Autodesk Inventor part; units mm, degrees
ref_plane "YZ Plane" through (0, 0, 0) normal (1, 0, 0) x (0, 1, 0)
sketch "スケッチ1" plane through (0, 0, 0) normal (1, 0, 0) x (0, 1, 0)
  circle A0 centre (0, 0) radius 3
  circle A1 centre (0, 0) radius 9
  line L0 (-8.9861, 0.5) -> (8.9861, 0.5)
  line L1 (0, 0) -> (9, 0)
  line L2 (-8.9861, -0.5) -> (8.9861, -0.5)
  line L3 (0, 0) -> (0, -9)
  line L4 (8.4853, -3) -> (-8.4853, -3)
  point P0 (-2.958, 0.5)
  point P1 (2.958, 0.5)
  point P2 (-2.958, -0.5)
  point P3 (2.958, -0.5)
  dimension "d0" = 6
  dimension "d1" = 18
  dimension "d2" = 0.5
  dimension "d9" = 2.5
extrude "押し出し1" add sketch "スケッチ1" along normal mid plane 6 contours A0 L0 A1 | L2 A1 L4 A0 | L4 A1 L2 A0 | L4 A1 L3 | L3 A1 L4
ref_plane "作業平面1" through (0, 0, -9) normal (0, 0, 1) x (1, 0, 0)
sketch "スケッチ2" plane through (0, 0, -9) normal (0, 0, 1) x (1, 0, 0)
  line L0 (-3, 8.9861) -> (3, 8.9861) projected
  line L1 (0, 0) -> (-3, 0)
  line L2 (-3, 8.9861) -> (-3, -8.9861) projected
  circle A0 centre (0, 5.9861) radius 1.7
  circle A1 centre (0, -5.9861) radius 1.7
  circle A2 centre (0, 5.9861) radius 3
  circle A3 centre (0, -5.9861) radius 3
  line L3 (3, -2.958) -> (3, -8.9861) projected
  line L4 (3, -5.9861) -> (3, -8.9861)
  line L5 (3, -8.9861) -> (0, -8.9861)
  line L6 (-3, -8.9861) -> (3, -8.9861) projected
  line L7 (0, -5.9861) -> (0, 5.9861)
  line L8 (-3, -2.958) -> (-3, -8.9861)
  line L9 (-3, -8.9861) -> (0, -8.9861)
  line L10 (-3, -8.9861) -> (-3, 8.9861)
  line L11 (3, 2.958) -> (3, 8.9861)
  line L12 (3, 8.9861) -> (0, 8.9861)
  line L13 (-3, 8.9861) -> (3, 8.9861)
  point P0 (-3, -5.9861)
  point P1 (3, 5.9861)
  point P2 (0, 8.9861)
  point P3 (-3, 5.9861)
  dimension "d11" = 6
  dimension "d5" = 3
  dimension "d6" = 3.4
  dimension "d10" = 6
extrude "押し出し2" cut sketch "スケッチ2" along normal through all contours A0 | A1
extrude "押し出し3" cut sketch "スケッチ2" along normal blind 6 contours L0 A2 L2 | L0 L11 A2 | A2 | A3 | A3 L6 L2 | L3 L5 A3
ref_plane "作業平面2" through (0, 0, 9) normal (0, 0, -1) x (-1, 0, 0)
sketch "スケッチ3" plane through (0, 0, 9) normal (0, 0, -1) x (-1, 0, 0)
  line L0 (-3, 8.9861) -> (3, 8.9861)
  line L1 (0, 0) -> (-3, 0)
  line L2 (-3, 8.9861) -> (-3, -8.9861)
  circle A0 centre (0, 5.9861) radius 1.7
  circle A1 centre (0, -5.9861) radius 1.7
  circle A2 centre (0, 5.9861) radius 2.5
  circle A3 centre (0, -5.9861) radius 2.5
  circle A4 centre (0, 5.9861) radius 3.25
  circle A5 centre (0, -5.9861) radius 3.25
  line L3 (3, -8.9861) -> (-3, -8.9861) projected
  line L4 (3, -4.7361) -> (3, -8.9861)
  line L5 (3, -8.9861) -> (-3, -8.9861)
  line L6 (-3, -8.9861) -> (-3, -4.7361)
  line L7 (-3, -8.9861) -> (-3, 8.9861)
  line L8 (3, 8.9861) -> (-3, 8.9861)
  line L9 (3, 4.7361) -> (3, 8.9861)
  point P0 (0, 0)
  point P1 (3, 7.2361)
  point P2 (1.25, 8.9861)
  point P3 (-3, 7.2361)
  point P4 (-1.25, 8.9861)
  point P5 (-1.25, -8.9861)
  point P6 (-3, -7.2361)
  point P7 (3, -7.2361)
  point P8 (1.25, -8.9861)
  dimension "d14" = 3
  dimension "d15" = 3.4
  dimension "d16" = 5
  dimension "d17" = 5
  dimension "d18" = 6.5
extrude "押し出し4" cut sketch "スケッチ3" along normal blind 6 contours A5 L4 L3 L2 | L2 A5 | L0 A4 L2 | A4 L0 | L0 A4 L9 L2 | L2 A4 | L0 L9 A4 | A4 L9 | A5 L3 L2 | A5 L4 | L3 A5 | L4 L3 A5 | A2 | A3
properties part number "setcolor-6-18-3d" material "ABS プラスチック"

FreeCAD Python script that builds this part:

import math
import FreeCAD as App
import Part
import Sketcher
from FreeCAD import Vector
Q = App.Units.Quantity

doc = App.newDocument("Part")
body = doc.addObject("PartDesign::Body", "Body")
body.AllowCompound = True

# Sketch on YZ plane
sketch1 = doc.addObject("Sketcher::SketchObject", "Sketch")
body.addObject(sketch1)
sketch1.AttachmentSupport = (doc.YZ_Plane, [""])
sketch1.MapMode = "FlatFace"
sketch1.addGeometry([
    Part.ArcOfCircle(Part.Circle(Vector(0, 0, 0), Vector(0, 0, 1), 3), math.radians(10), math.radians(170)),  # 0
    Part.LineSegment(Vector(3, 0.5, 0), Vector(9, 0.5, 0)),  # 1
    Part.ArcOfCircle(Part.Circle(Vector(0, 0, 0), Vector(0, 0, 1), 9), math.radians(3), math.radians(177)),  # 2
    Part.LineSegment(Vector(-9, 0.5, 0), Vector(-3, 0.5, 0)),  # 3
    Part.LineSegment(Vector(9, -0.5, 0), Vector(3, -0.5, 0)),  # 4
    Part.ArcOfCircle(Part.Circle(Vector(0, 0, 0), Vector(0, 0, 1), 3), math.radians(-170), math.radians(-10)),  # 5
    Part.LineSegment(Vector(-3, -0.5, 0), Vector(-9, -0.5, 0)),  # 6
    Part.ArcOfCircle(Part.Circle(Vector(0, 0, 0), Vector(0, 0, 1), 9), math.radians(-177), math.radians(-3)),  # 7
], False)
sketch1.addConstraint([
    Sketcher.Constraint("Coincident", 0, 1, 1, 1),
    Sketcher.Constraint("Coincident", 1, 2, 2, 1),
    Sketcher.Constraint("Coincident", 2, 2, 3, 1),
    Sketcher.Constraint("Coincident", 3, 2, 0, 2),
    Sketcher.Constraint("Coincident", 4, 2, 5, 2),
    Sketcher.Constraint("Coincident", 5, 1, 6, 1),
    Sketcher.Constraint("Coincident", 6, 2, 7, 1),
    Sketcher.Constraint("Coincident", 7, 2, 4, 1),
    Sketcher.Constraint("Horizontal", 1),
    Sketcher.Constraint("Horizontal", 3),
    Sketcher.Constraint("Horizontal", 4),
    Sketcher.Constraint("Horizontal", 6),
    Sketcher.Constraint("Coincident", 0, 3, -1, 1),
    Sketcher.Constraint("Coincident", 2, 3, -1, 1),
    Sketcher.Constraint("Coincident", 5, 3, -1, 1),
    Sketcher.Constraint("Coincident", 7, 3, -1, 1),
    Sketcher.Constraint("Equal", 0, 5),
    Sketcher.Constraint("Equal", 2, 7),
    Sketcher.Constraint("Horizontal", 1, 2, 2, 2),
    Sketcher.Constraint("Horizontal", 4, 2, 5, 1),
    Sketcher.Constraint("Vertical", 0, 1, 4, 2),
    Sketcher.Constraint("Radius", 0, Q("3 mm")),
    Sketcher.Constraint("Radius", 2, Q("9 mm")),
    Sketcher.Constraint("DistanceY", -1, 1, 0, 1, Q("0.5 mm")),
])
pad1 = doc.addObject("PartDesign::Pad", "Pad")
body.addObject(pad1)
pad1.Profile = sketch1
pad1.Length = 6
pad1.Midplane = True

# Sketch on XY plane
sketch2 = doc.addObject("Sketcher::SketchObject", "Sketch001")
body.addObject(sketch2)
sketch2.AttachmentSupport = (doc.XY_Plane, [""])
sketch2.MapMode = "FlatFace"
sketch2.AttachmentOffset = App.Placement(Vector(0, 0, -9), App.Rotation())
sketch2.addGeometry([
    Part.Circle(Vector(0, 6, 0), Vector(0, 0, 1), 1.7),
    Part.Circle(Vector(0, -6, 0), Vector(0, 0, 1), 1.7),
], False)
sketch2.addConstraint([
    Sketcher.Constraint("Equal", 0, 1),
    Sketcher.Constraint("Symmetric", 0, 3, 1, 3, -1, 1),
    Sketcher.Constraint("PointOnObject", 0, 3, -2),
    Sketcher.Constraint("Diameter", 0, Q("3.4 mm")),
    Sketcher.Constraint("DistanceY", -1, 1, 0, 3, Q("5.986 mm")),
])
pocket1 = doc.addObject("PartDesign::Pocket", "Pocket")
body.addObject(pocket1)
pocket1.Profile = sketch2
pocket1.Type = "ThroughAll"
pocket1.Reversed = True

# Sketch on XY plane
sketch3 = doc.addObject("Sketcher::SketchObject", "Sketch002")
body.addObject(sketch3)
sketch3.AttachmentSupport = (doc.XY_Plane, [""])
sketch3.MapMode = "FlatFace"
sketch3.AttachmentOffset = App.Placement(Vector(0, 0, -9), App.Rotation())
sketch3.addGeometry([
    Part.LineSegment(Vector(-3, 9, 0), Vector(-3, 6, 0)),  # 0
    Part.ArcOfCircle(Part.Circle(Vector(0, 6, 0), Vector(0, 0, 1), 3), math.radians(180), math.radians(270)),  # 1
    Part.ArcOfCircle(Part.Circle(Vector(0, 6, 0), Vector(0, 0, 1), 3), math.radians(-90), math.radians(0)),  # 2
    Part.LineSegment(Vector(3, 6, 0), Vector(3, 9, 0)),  # 3
    Part.LineSegment(Vector(3, 9, 0), Vector(-3, 9, 0)),  # 4
    Part.Circle(Vector(0, 6, 0), Vector(0, 0, 1), 1.7),  # 5
    Part.ArcOfCircle(Part.Circle(Vector(0, -6, 0), Vector(0, 0, 1), 3), math.radians(0), math.radians(90)),  # 6
    Part.ArcOfCircle(Part.Circle(Vector(0, -6, 0), Vector(0, 0, 1), 3), math.radians(90), math.radians(180)),  # 7
    Part.LineSegment(Vector(-3, -6, 0), Vector(-3, -9, 0)),  # 8
    Part.LineSegment(Vector(-3, -9, 0), Vector(3, -9, 0)),  # 9
    Part.LineSegment(Vector(3, -9, 0), Vector(3, -6, 0)),  # 10
    Part.Circle(Vector(0, -6, 0), Vector(0, 0, 1), 1.7),  # 11
], False)
sketch3.addConstraint([
    Sketcher.Constraint("Tangent", 0, 2, 1, 1),
    Sketcher.Constraint("Tangent", 1, 2, 2, 1),
    Sketcher.Constraint("Tangent", 2, 2, 3, 1),
    Sketcher.Constraint("Coincident", 3, 2, 4, 1),
    Sketcher.Constraint("Coincident", 4, 2, 0, 1),
    Sketcher.Constraint("Tangent", 6, 2, 7, 1),
    Sketcher.Constraint("Tangent", 7, 2, 8, 1),
    Sketcher.Constraint("Coincident", 8, 2, 9, 1),
    Sketcher.Constraint("Coincident", 9, 2, 10, 1),
    Sketcher.Constraint("Tangent", 10, 2, 6, 1),
    Sketcher.Constraint("Vertical", 0),
    Sketcher.Constraint("Vertical", 3),
    Sketcher.Constraint("Horizontal", 4),
    Sketcher.Constraint("Vertical", 8),
    Sketcher.Constraint("Horizontal", 9),
    Sketcher.Constraint("Vertical", 10),
    Sketcher.Constraint("Coincident", 5, 3, 1, 3),
    Sketcher.Constraint("Coincident", 11, 3, 6, 3),
    Sketcher.Constraint("Equal", 1, 2),
    Sketcher.Constraint("Equal", 2, 6),
    Sketcher.Constraint("Equal", 6, 7),
    Sketcher.Constraint("Equal", 5, 11),
    Sketcher.Constraint("Symmetric", 1, 3, 6, 3, -1, 1),
    Sketcher.Constraint("Symmetric", 4, 2, 8, 2, -1),
    Sketcher.Constraint("PointOnObject", 1, 2, -2),
    Sketcher.Constraint("PointOnObject", 6, 2, -2),
    Sketcher.Constraint("Radius", 1, Q("3 mm")),
    Sketcher.Constraint("Diameter", 5, Q("3.4 mm")),
    Sketcher.Constraint("DistanceY", 0, 2, 0, 1, Q("3 mm")),
    Sketcher.Constraint("DistanceY", -1, 1, 1, 3, Q("5.986 mm")),
])
pocket2 = doc.addObject("PartDesign::Pocket", "Pocket001")
body.addObject(pocket2)
pocket2.Profile = sketch3
pocket2.Length = 6
pocket2.Reversed = True

# Sketch on XY plane
sketch4 = doc.addObject("Sketcher::SketchObject", "Sketch003")
body.addObject(sketch4)
sketch4.AttachmentSupport = (doc.XY_Plane, [""])
sketch4.MapMode = "FlatFace"
sketch4.AttachmentOffset = App.Placement(Vector(0, 0, 9), App.Rotation())
sketch4.addGeometry([
    Part.LineSegment(Vector(3, -7.2, 0), Vector(3, -9, 0)),  # 0
    Part.LineSegment(Vector(3, -9, 0), Vector(1.2, -9, 0)),  # 1
    Part.ArcOfCircle(Part.Circle(Vector(0, -6, 0), Vector(0, 0, 1), 3.2), math.radians(-113), math.radians(-67)),  # 2
    Part.LineSegment(Vector(-1.2, -9, 0), Vector(-3, -9, 0)),  # 3
    Part.LineSegment(Vector(-3, -9, 0), Vector(-3, -7.2, 0)),  # 4
    Part.ArcOfCircle(Part.Circle(Vector(0, -6, 0), Vector(0, 0, 1), 3.2), math.radians(-23), math.radians(203)),  # 5
    Part.Circle(Vector(0, -6, 0), Vector(0, 0, 1), 1.7),  # 6
    Part.LineSegment(Vector(1.2, 9, 0), Vector(3, 9, 0)),  # 7
    Part.LineSegment(Vector(3, 9, 0), Vector(3, 7.2, 0)),  # 8
    Part.ArcOfCircle(Part.Circle(Vector(0, 6, 0), Vector(0, 0, 1), 3.2), math.radians(157), math.radians(383)),  # 9
    Part.LineSegment(Vector(-3, 7.2, 0), Vector(-3, 9, 0)),  # 10
    Part.LineSegment(Vector(-3, 9, 0), Vector(-1.2, 9, 0)),  # 11
    Part.ArcOfCircle(Part.Circle(Vector(0, 6, 0), Vector(0, 0, 1), 3.2), math.radians(67), math.radians(113)),  # 12
    Part.Circle(Vector(0, 6, 0), Vector(0, 0, 1), 1.7),  # 13
], False)
sketch4.addConstraint([
    Sketcher.Constraint("Coincident", 0, 2, 1, 1),
    Sketcher.Constraint("Coincident", 1, 2, 2, 2),
    Sketcher.Constraint("Coincident", 2, 1, 3, 1),
    Sketcher.Constraint("Coincident", 3, 2, 4, 1),
    Sketcher.Constraint("Coincident", 4, 2, 5, 2),
    Sketcher.Constraint("Coincident", 5, 1, 0, 1),
    Sketcher.Constraint("Coincident", 7, 2, 8, 1),
    Sketcher.Constraint("Coincident", 8, 2, 9, 2),
    Sketcher.Constraint("Coincident", 9, 1, 10, 1),
    Sketcher.Constraint("Coincident", 10, 2, 11, 1),
    Sketcher.Constraint("Coincident", 11, 2, 12, 2),
    Sketcher.Constraint("Coincident", 12, 1, 7, 1),
    Sketcher.Constraint("Vertical", 0),
    Sketcher.Constraint("Horizontal", 1),
    Sketcher.Constraint("Horizontal", 3),
    Sketcher.Constraint("Vertical", 4),
    Sketcher.Constraint("Horizontal", 7),
    Sketcher.Constraint("Vertical", 8),
    Sketcher.Constraint("Vertical", 10),
    Sketcher.Constraint("Horizontal", 11),
    Sketcher.Constraint("Coincident", 5, 3, 2, 3),
    Sketcher.Constraint("Coincident", 6, 3, 2, 3),
    Sketcher.Constraint("Coincident", 12, 3, 9, 3),
    Sketcher.Constraint("Coincident", 13, 3, 9, 3),
    Sketcher.Constraint("Equal", 2, 5),
    Sketcher.Constraint("Equal", 5, 9),
    Sketcher.Constraint("Equal", 9, 12),
    Sketcher.Constraint("Equal", 6, 13),
    Sketcher.Constraint("Symmetric", 2, 3, 9, 3, -1, 1),
    Sketcher.Constraint("Symmetric", 3, 2, 7, 2, -1, 1),
    Sketcher.Constraint("Symmetric", 0, 2, 10, 2, -1, 1),
    Sketcher.Constraint("Symmetric", 1, 2, 2, 1, -2),
    Sketcher.Constraint("Horizontal", 4, 2, 5, 1),
    Sketcher.Constraint("Equal", 11, 0),
    Sketcher.Constraint("Diameter", 6, Q("3.4 mm")),
    Sketcher.Constraint("Radius", 2, Q("3.25 mm")),
    Sketcher.Constraint("DistanceX", -1, 1, 0, 2, Q("3 mm")),
    Sketcher.Constraint("DistanceY", 2, 3, -1, 1, Q("5.986 mm")),
])
pocket3 = doc.addObject("PartDesign::Pocket", "Pocket002")
body.addObject(pocket3)
pocket3.Profile = sketch4
pocket3.Length = 6

doc.recompute()
